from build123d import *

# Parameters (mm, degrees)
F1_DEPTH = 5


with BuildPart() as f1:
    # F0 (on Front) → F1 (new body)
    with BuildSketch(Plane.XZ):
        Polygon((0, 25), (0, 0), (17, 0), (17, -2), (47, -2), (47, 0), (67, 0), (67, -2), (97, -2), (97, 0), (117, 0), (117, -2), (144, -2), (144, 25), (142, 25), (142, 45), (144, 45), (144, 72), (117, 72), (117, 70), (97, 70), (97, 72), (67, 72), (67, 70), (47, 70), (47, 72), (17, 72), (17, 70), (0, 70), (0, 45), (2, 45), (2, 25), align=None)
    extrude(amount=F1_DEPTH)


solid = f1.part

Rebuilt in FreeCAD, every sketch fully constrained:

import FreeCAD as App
import Part
import Sketcher
Q = App.Units.Quantity

doc = App.newDocument("Part")
body = doc.addObject("PartDesign::Body", "Body")

sketch1 = doc.addObject("Sketcher::SketchObject", "Sketch")
body.addObject(sketch1)
sketch1.AttachmentSupport = (doc.XZ_Plane, [""])
sketch1.MapMode = "FlatFace"
sketch1.addGeometry(Part.LineSegment(App.Vector(0, 25, 0), App.Vector(0, 0, 0)), False)
sketch1.addGeometry(Part.LineSegment(App.Vector(0, 0, 0), App.Vector(17, 0, 0)), False)
sketch1.addGeometry(Part.LineSegment(App.Vector(17, 0, 0), App.Vector(17, -2, 0)), False)
sketch1.addGeometry(Part.LineSegment(App.Vector(17, -2, 0), App.Vector(47, -2, 0)), False)
sketch1.addGeometry(Part.LineSegment(App.Vector(47, -2, 0), App.Vector(47, 0, 0)), False)
sketch1.addGeometry(Part.LineSegment(App.Vector(47, 0, 0), App.Vector(67, 0, 0)), False)
sketch1.addGeometry(Part.LineSegment(App.Vector(67, 0, 0), App.Vector(67, -2, 0)), False)
sketch1.addGeometry(Part.LineSegment(App.Vector(67, -2, 0), App.Vector(97, -2, 0)), False)
sketch1.addGeometry(Part.LineSegment(App.Vector(97, -2, 0), App.Vector(97, 0, 0)), False)
sketch1.addGeometry(Part.LineSegment(App.Vector(97, 0, 0), App.Vector(117, 0, 0)), False)
sketch1.addGeometry(Part.LineSegment(App.Vector(117, 0, 0), App.Vector(117, -2, 0)), False)
sketch1.addGeometry(Part.LineSegment(App.Vector(117, -2, 0), App.Vector(144, -2, 0)), False)
sketch1.addGeometry(Part.LineSegment(App.Vector(144, -2, 0), App.Vector(144, 25, 0)), False)
sketch1.addGeometry(Part.LineSegment(App.Vector(144, 25, 0), App.Vector(142, 25, 0)), False)
sketch1.addGeometry(Part.LineSegment(App.Vector(142, 25, 0), App.Vector(142, 45, 0)), False)
sketch1.addGeometry(Part.LineSegment(App.Vector(142, 45, 0), App.Vector(144, 45, 0)), False)
sketch1.addGeometry(Part.LineSegment(App.Vector(144, 45, 0), App.Vector(144, 72, 0)), False)
sketch1.addGeometry(Part.LineSegment(App.Vector(144, 72, 0), App.Vector(117, 72, 0)), False)
sketch1.addGeometry(Part.LineSegment(App.Vector(117, 72, 0), App.Vector(117, 70, 0)), False)
sketch1.addGeometry(Part.LineSegment(App.Vector(117, 70, 0), App.Vector(97, 70, 0)), False)
sketch1.addGeometry(Part.LineSegment(App.Vector(97, 70, 0), App.Vector(97, 72, 0)), False)
sketch1.addGeometry(Part.LineSegment(App.Vector(97, 72, 0), App.Vector(67, 72, 0)), False)
sketch1.addGeometry(Part.LineSegment(App.Vector(67, 72, 0), App.Vector(67, 70, 0)), False)
sketch1.addGeometry(Part.LineSegment(App.Vector(67, 70, 0), App.Vector(47, 70, 0)), False)
sketch1.addGeometry(Part.LineSegment(App.Vector(47, 70, 0), App.Vector(47, 72, 0)), False)
sketch1.addGeometry(Part.LineSegment(App.Vector(47, 72, 0), App.Vector(17, 72, 0)), False)
sketch1.addGeometry(Part.LineSegment(App.Vector(17, 72, 0), App.Vector(17, 70, 0)), False)
sketch1.addGeometry(Part.LineSegment(App.Vector(17, 70, 0), App.Vector(0, 70, 0)), False)
sketch1.addGeometry(Part.LineSegment(App.Vector(0, 70, 0), App.Vector(0, 45, 0)), False)
sketch1.addGeometry(Part.LineSegment(App.Vector(0, 45, 0), App.Vector(2, 45, 0)), False)
sketch1.addGeometry(Part.LineSegment(App.Vector(2, 45, 0), App.Vector(2, 25, 0)), False)
sketch1.addGeometry(Part.LineSegment(App.Vector(2, 25, 0), App.Vector(0, 25, 0)), False)
sketch1.addConstraint(Sketcher.Constraint("Coincident", 0, 2, 1, 1))
sketch1.addConstraint(Sketcher.Constraint("Coincident", 1, 2, 2, 1))
sketch1.addConstraint(Sketcher.Constraint("Coincident", 2, 2, 3, 1))
sketch1.addConstraint(Sketcher.Constraint("Coincident", 3, 2, 4, 1))
sketch1.addConstraint(Sketcher.Constraint("Coincident", 4, 2, 5, 1))
sketch1.addConstraint(Sketcher.Constraint("Coincident", 5, 2, 6, 1))
sketch1.addConstraint(Sketcher.Constraint("Coincident", 6, 2, 7, 1))
sketch1.addConstraint(Sketcher.Constraint("Coincident", 7, 2, 8, 1))
sketch1.addConstraint(Sketcher.Constraint("Coincident", 8, 2, 9, 1))
sketch1.addConstraint(Sketcher.Constraint("Coincident", 9, 2, 10, 1))
sketch1.addConstraint(Sketcher.Constraint("Coincident", 10, 2, 11, 1))
sketch1.addConstraint(Sketcher.Constraint("Coincident", 11, 2, 12, 1))
sketch1.addConstraint(Sketcher.Constraint("Coincident", 12, 2, 13, 1))
sketch1.addConstraint(Sketcher.Constraint("Coincident", 13, 2, 14, 1))
sketch1.addConstraint(Sketcher.Constraint("Coincident", 14, 2, 15, 1))
sketch1.addConstraint(Sketcher.Constraint("Coincident", 15, 2, 16, 1))
sketch1.addConstraint(Sketcher.Constraint("Coincident", 16, 2, 17, 1))
sketch1.addConstraint(Sketcher.Constraint("Coincident", 17, 2, 18, 1))
sketch1.addConstraint(Sketcher.Constraint("Coincident", 18, 2, 19, 1))
sketch1.addConstraint(Sketcher.Constraint("Coincident", 19, 2, 20, 1))
sketch1.addConstraint(Sketcher.Constraint("Coincident", 20, 2, 21, 1))
sketch1.addConstraint(Sketcher.Constraint("Coincident", 21, 2, 22, 1))
sketch1.addConstraint(Sketcher.Constraint("Coincident", 22, 2, 23, 1))
sketch1.addConstraint(Sketcher.Constraint("Coincident", 23, 2, 24, 1))
sketch1.addConstraint(Sketcher.Constraint("Coincident", 24, 2, 25, 1))
sketch1.addConstraint(Sketcher.Constraint("Coincident", 25, 2, 26, 1))
sketch1.addConstraint(Sketcher.Constraint("Coincident", 26, 2, 27, 1))
sketch1.addConstraint(Sketcher.Constraint("Coincident", 27, 2, 28, 1))
sketch1.addConstraint(Sketcher.Constraint("Coincident", 28, 2, 29, 1))
sketch1.addConstraint(Sketcher.Constraint("Coincident", 29, 2, 30, 1))
sketch1.addConstraint(Sketcher.Constraint("Coincident", 30, 2, 31, 1))
sketch1.addConstraint(Sketcher.Constraint("Coincident", 31, 2, 0, 1))
sketch1.addConstraint(Sketcher.Constraint("Vertical", 0))
sketch1.addConstraint(Sketcher.Constraint("Horizontal", 1))
sketch1.addConstraint(Sketcher.Constraint("Vertical", 2))
sketch1.addConstraint(Sketcher.Constraint("Horizontal", 3))
sketch1.addConstraint(Sketcher.Constraint("Vertical", 4))
sketch1.addConstraint(Sketcher.Constraint("Horizontal", 5))
sketch1.addConstraint(Sketcher.Constraint("Vertical", 6))
sketch1.addConstraint(Sketcher.Constraint("Horizontal", 7))
sketch1.addConstraint(Sketcher.Constraint("Vertical", 8))
sketch1.addConstraint(Sketcher.Constraint("Horizontal", 9))
sketch1.addConstraint(Sketcher.Constraint("Vertical", 10))
sketch1.addConstraint(Sketcher.Constraint("Horizontal", 11))
sketch1.addConstraint(Sketcher.Constraint("Vertical", 12))
sketch1.addConstraint(Sketcher.Constraint("Horizontal", 13))
sketch1.addConstraint(Sketcher.Constraint("Vertical", 14))
sketch1.addConstraint(Sketcher.Constraint("Horizontal", 15))
sketch1.addConstraint(Sketcher.Constraint("Vertical", 16))
sketch1.addConstraint(Sketcher.Constraint("Horizontal", 17))
sketch1.addConstraint(Sketcher.Constraint("Vertical", 18))
sketch1.addConstraint(Sketcher.Constraint("Horizontal", 19))
sketch1.addConstraint(Sketcher.Constraint("Vertical", 20))
sketch1.addConstraint(Sketcher.Constraint("Horizontal", 21))
sketch1.addConstraint(Sketcher.Constraint("Vertical", 22))
sketch1.addConstraint(Sketcher.Constraint("Horizontal", 23))
sketch1.addConstraint(Sketcher.Constraint("Vertical", 24))
sketch1.addConstraint(Sketcher.Constraint("Horizontal", 25))
sketch1.addConstraint(Sketcher.Constraint("Vertical", 26))
sketch1.addConstraint(Sketcher.Constraint("Horizontal", 27))
sketch1.addConstraint(Sketcher.Constraint("Vertical", 28))
sketch1.addConstraint(Sketcher.Constraint("Horizontal", 29))
sketch1.addConstraint(Sketcher.Constraint("Vertical", 30))
sketch1.addConstraint(Sketcher.Constraint("Horizontal", 31))
sketch1.addConstraint(Sketcher.Constraint("Coincident", 0, 2, -1, 1))
sketch1.addConstraint(Sketcher.Constraint("PointOnObject", 4, 2, -1))
sketch1.addConstraint(Sketcher.Constraint("PointOnObject", 8, 2, -1))
sketch1.addConstraint(Sketcher.Constraint("PointOnObject", 27, 2, -2))
sketch1.addConstraint(Sketcher.Constraint("Horizontal", 3, 2, 6, 2))
sketch1.addConstraint(Sketcher.Constraint("Horizontal", 7, 2, 10, 2))
sketch1.addConstraint(Sketcher.Constraint("Horizontal", 17, 2, 20, 2))
sketch1.addConstraint(Sketcher.Constraint("Horizontal", 19, 2, 22, 2))
sketch1.addConstraint(Sketcher.Constraint("Horizontal", 21, 2, 24, 2))
sketch1.addConstraint(Sketcher.Constraint("Horizontal", 23, 2, 26, 2))
sketch1.addConstraint(Sketcher.Constraint("Horizontal", 15, 2, 28, 2))
sketch1.addConstraint(Sketcher.Constraint("Horizontal", 13, 2, 30, 2))
sketch1.addConstraint(Sketcher.Constraint("Vertical", 12, 2, 15, 2))
sketch1.addConstraint(Sketcher.Constraint("Vertical", 10, 2, 17, 2))
sketch1.addConstraint(Sketcher.Constraint("Vertical", 8, 2, 19, 2))
sketch1.addConstraint(Sketcher.Constraint("Vertical", 6, 2, 21, 2))
sketch1.addConstraint(Sketcher.Constraint("Vertical", 4, 2, 23, 2))
sketch1.addConstraint(Sketcher.Constraint("Vertical", 2, 2, 25, 2))
sketch1.addConstraint(Sketcher.Constraint("Equal", 3, 7))
sketch1.addConstraint(Sketcher.Constraint("Equal", 5, 9))
sketch1.addConstraint(Sketcher.Constraint("Equal", 15, 29))
sketch1.addConstraint(Sketcher.Constraint("Equal", 31, 2))
sketch1.addConstraint(Sketcher.Constraint("Equal", 17, 12))
sketch1.addConstraint(Sketcher.Constraint("Equal", 23, 14))
sketch1.addConstraint(Sketcher.Constraint("Equal", 12, 16))
sketch1.addConstraint(Sketcher.Constraint("Equal", 10, 18))
sketch1.addConstraint(Sketcher.Constraint("DistanceX", 1, 1, 1, 2, Q("17 mm")))
sketch1.addConstraint(Sketcher.Constraint("DistanceX", 3, 1, 3, 2, Q("30 mm")))
sketch1.addConstraint(Sketcher.Constraint("DistanceX", 5, 1, 5, 2, Q("20 mm")))
sketch1.addConstraint(Sketcher.Constraint("DistanceX", 11, 1, 11, 2, Q("27 mm")))
sketch1.addConstraint(Sketcher.Constraint("DistanceX", 13, 2, 13, 1, Q("2 mm")))
pad1 = doc.addObject("PartDesign::Pad", "Pad")
body.addObject(pad1)
pad1.Profile = sketch1
pad1.Length = 5

doc.recompute()
